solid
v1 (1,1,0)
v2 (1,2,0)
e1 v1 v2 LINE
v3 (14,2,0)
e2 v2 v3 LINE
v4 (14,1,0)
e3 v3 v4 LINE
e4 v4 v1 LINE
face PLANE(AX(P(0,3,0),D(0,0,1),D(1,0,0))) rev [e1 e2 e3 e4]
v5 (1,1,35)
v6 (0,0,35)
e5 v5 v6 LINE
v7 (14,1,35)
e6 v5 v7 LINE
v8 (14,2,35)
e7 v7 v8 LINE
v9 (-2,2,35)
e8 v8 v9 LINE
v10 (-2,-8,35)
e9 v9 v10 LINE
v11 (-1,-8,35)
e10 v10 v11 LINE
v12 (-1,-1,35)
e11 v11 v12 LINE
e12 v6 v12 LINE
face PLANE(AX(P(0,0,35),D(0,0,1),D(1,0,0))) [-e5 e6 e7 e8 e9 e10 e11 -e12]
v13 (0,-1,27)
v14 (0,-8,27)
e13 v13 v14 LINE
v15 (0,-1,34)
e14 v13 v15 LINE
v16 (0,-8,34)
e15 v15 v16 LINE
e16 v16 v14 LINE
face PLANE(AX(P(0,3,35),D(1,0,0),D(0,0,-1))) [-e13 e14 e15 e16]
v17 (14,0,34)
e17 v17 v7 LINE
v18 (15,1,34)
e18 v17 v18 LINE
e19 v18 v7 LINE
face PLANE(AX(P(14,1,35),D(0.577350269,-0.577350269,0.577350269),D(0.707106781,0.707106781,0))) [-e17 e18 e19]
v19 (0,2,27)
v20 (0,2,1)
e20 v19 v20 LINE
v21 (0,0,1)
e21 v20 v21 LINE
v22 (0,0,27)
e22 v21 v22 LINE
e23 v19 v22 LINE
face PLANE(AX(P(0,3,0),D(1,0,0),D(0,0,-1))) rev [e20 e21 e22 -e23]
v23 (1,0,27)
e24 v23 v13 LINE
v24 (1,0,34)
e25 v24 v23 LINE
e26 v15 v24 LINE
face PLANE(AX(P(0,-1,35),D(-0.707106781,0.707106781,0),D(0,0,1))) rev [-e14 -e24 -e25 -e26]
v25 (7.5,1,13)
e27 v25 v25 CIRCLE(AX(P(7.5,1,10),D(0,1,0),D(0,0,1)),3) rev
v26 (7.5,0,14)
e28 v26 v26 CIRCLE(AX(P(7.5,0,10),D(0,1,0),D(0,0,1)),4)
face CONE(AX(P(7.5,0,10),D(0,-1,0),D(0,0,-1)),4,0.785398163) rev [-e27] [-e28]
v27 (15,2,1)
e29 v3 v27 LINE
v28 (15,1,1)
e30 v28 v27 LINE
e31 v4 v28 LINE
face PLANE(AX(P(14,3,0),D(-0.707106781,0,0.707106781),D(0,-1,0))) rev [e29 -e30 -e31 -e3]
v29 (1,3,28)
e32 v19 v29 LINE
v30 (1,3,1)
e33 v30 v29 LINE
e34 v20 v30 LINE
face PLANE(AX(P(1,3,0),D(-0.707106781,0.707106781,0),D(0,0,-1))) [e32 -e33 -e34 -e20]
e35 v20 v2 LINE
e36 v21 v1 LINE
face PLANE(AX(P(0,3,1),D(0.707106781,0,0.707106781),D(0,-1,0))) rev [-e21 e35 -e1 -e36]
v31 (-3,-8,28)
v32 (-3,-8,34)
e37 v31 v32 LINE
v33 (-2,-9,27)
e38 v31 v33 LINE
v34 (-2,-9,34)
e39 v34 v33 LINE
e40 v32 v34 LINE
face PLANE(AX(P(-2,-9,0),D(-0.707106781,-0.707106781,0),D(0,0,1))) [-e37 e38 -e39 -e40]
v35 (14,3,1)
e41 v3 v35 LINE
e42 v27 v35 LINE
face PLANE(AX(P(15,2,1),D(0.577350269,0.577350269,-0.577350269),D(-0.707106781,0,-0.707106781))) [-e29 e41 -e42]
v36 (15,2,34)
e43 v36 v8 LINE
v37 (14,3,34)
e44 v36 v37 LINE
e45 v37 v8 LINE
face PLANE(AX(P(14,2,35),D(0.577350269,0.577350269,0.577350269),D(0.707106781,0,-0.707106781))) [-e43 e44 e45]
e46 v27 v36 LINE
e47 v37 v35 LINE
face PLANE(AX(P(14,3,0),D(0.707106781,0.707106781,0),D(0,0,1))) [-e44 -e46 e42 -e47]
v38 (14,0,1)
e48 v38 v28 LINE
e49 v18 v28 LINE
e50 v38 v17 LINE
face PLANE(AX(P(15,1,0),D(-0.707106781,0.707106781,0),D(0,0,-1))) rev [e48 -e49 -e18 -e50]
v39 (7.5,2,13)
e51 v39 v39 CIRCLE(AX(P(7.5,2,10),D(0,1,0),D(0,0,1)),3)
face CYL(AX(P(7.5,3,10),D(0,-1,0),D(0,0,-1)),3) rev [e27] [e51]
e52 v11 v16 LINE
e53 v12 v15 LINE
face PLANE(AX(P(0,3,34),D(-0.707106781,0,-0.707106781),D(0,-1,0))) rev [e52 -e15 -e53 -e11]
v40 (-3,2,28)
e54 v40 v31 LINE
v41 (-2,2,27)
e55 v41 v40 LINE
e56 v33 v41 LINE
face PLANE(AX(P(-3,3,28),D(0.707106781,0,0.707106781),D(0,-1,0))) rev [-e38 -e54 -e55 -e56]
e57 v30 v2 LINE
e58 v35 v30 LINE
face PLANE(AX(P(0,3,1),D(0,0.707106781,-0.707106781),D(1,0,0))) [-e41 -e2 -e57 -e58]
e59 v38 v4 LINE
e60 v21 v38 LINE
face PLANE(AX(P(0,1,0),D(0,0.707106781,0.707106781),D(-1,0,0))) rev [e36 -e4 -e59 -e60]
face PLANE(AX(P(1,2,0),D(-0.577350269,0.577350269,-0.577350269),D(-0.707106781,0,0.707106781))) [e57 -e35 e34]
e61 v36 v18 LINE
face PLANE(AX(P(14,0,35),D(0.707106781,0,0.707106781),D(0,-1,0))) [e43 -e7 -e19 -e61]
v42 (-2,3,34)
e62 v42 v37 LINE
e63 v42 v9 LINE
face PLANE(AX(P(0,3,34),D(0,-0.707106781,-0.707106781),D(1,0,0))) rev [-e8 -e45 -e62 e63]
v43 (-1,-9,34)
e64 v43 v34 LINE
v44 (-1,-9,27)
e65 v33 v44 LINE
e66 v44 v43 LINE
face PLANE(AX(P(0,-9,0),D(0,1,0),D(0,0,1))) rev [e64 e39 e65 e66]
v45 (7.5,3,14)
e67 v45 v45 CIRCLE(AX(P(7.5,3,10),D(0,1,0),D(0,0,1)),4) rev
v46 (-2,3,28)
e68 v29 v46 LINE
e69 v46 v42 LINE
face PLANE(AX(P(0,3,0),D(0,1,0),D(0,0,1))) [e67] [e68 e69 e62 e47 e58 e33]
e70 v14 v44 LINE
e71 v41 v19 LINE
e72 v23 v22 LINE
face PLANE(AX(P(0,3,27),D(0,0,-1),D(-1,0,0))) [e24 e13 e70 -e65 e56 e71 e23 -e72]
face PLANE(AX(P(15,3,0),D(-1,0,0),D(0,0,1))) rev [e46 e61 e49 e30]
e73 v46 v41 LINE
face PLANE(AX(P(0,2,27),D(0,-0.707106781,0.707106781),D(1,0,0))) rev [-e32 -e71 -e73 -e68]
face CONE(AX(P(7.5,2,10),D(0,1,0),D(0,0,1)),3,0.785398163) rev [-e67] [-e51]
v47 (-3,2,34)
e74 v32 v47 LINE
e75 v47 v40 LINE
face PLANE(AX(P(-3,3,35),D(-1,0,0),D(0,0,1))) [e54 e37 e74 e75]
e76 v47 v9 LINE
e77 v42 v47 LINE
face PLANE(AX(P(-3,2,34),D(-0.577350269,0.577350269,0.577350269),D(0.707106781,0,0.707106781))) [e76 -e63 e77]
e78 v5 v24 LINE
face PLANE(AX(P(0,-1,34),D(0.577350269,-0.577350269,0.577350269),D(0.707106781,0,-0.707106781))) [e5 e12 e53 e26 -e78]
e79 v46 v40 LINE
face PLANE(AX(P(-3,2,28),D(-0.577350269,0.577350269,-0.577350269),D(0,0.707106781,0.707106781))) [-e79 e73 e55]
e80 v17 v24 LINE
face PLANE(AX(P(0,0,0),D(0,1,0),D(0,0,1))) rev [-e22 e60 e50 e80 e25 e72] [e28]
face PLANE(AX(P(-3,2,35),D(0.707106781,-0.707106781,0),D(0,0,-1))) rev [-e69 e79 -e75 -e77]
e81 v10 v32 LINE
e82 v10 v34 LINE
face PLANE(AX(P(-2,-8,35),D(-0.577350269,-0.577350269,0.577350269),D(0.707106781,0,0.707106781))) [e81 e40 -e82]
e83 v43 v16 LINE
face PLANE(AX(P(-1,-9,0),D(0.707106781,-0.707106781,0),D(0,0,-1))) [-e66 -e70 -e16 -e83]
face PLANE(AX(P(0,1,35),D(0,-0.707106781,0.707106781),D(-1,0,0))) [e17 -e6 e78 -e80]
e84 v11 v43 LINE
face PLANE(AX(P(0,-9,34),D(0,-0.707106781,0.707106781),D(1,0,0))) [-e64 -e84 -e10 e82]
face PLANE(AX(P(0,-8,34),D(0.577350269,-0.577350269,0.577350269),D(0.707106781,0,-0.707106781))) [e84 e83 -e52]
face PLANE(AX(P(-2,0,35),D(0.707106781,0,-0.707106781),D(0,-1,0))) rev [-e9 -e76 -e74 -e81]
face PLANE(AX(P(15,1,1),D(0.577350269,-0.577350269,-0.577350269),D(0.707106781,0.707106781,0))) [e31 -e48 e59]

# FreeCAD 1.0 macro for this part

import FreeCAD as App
import Part
import Sketcher

V = App.Vector
Q = App.Units.Quantity


def edges_at(feature, points):
    """Names of the edges that pass closest to the given points."""
    edges = feature.Shape.Edges
    near = lambda p: min(range(len(edges)), key=lambda i: edges[i].distToShape(Part.Vertex(*p))[0])
    return sorted({f"Edge{near(p) + 1}" for p in points})


def add_polygon(sketch, points):
    """Adds a closed chain of lines whose ends are joined by coincident constraints."""
    first, n = sketch.GeometryCount, len(points)
    for a, b in zip(points, points[1:] + points[:1]):
        sketch.addGeometry(Part.LineSegment(App.Vector(*a, 0), App.Vector(*b, 0)), False)
    for i in range(n):
        sketch.addConstraint(Sketcher.Constraint("Coincident", first + i, 2, first + (i + 1) % n, 1))

doc = App.newDocument("Part")
body = doc.addObject("PartDesign::Body", "Body")

# Sketch on XZ plane
sketch1 = body.newObject("Sketcher::SketchObject", "Sketch")
sketch1.AttachmentSupport = (doc.getObject("XZ_Plane"), [""])
sketch1.MapMode = "FlatFace"
add_polygon(sketch1, [(0, 0), (0, 20), (15, 20), (15, 0)])  # lines 0-3
sketch1.addGeometry(Part.Circle(V(7.5, 10, 0), V(0, 0, 1), 3), False)  # 4
sketch1.addConstraint([
    Sketcher.Constraint("Vertical", 0),
    Sketcher.Constraint("Horizontal", 1),
    Sketcher.Constraint("Vertical", 2),
    Sketcher.Constraint("Horizontal", 3),
    Sketcher.Constraint("Coincident", 3, 2, -1, 1),
    Sketcher.Constraint("Diameter", 4, Q("6 mm")),
    Sketcher.Constraint("DistanceX", 1, 1, 1, 2, Q("15 mm")),
    Sketcher.Constraint("DistanceY", 0, 1, 0, 2, Q("20 mm")),
    Sketcher.Constraint("DistanceY", -1, 1, 4, 3, Q("10 mm")),
    Sketcher.Constraint("DistanceX", -1, 1, 4, 3, Q("7.5 mm")),
])
pad1 = body.newObject("PartDesign::Pad", "Pad")
pad1.Profile = sketch1
pad1.Length = 3
pad1.Reversed = True

# Sketch on XZ plane
sketch2 = body.newObject("Sketcher::SketchObject", "Sketch001")
sketch2.AttachmentSupport = (doc.getObject("XZ_Plane"), [""])
sketch2.MapMode = "FlatFace"
sketch2.AttachmentOffset = App.Placement(V(0, 0, -3), App.Rotation())
add_polygon(sketch2, [(0, 20), (0, 35), (15, 35), (15, 20)])  # lines 0-3
sketch2.addConstraint([
    Sketcher.Constraint("Vertical", 0),
    Sketcher.Constraint("Horizontal", 1),
    Sketcher.Constraint("Vertical", 2),
    Sketcher.Constraint("Horizontal", 3),
    Sketcher.Constraint("PointOnObject", 0, 2, -2),
    Sketcher.Constraint("Equal", 3, 0),
    Sketcher.Constraint("DistanceX", 1, 1, 1, 2, Q("15 mm")),
    Sketcher.Constraint("DistanceY", -1, 1, 0, 2, Q("35 mm")),
])
pad2 = body.newObject("PartDesign::Pad", "Pad001")
pad2.Profile = sketch2
pad2.Length = 3

# Sketch on XZ plane
sketch3 = body.newObject("Sketcher::SketchObject", "Sketch002")
sketch3.AttachmentSupport = (doc.getObject("XZ_Plane"), [""])
sketch3.MapMode = "FlatFace"
add_polygon(sketch3, [(-3, 35), (-3, 27), (0, 27), (0, 35)])  # lines 0-3
sketch3.addConstraint([
    Sketcher.Constraint("Vertical", 0),
    Sketcher.Constraint("Horizontal", 1),
    Sketcher.Constraint("Vertical", 2),
    Sketcher.Constraint("Horizontal", 3),
    Sketcher.Constraint("PointOnObject", 1, 2, -2),
    Sketcher.Constraint("DistanceX", 1, 1, 1, 2, Q("3 mm")),
    Sketcher.Constraint("DistanceY", 0, 2, 0, 1, Q("8 mm")),
    Sketcher.Constraint("DistanceY", -1, 1, 0, 2, Q("27 mm")),
])
pad3 = body.newObject("PartDesign::Pad", "Pad002")
pad3.Profile = sketch3
pad3.Type = "TwoLengths"
pad3.Length = 9
pad3.Length2 = 3
doc.recompute()

chamfer = body.newObject("PartDesign::Chamfer", "Chamfer")
chamfer.Base = (pad3, edges_at(pad3, [
    (7.5, 0, 7),
    (7.5, 3, 7),
    (15, 3, 17.5),
    (7.5, 3, 0),
    (7.5, 0, 35),
    (15, 1.5, 35),
    (6, 3, 35),
    (0, 0, 31),
    (0, -4.5, 35),
    (-1.5, 3, 27),
    (-3, -3, 27),
    (-3, 3, 31),
    (-3, -3, 35),
    (0, -9, 31),
    (-1.5, -9, 35),
    (-3, -9, 31),
    (0, 3, 13.5),
    (7.5, 0, 0),
    (15, 0, 17.5),
    (0, 1.5, 0),
    (15, 1.5, 0),
]))
chamfer.Size = 1

doc.recompute()
